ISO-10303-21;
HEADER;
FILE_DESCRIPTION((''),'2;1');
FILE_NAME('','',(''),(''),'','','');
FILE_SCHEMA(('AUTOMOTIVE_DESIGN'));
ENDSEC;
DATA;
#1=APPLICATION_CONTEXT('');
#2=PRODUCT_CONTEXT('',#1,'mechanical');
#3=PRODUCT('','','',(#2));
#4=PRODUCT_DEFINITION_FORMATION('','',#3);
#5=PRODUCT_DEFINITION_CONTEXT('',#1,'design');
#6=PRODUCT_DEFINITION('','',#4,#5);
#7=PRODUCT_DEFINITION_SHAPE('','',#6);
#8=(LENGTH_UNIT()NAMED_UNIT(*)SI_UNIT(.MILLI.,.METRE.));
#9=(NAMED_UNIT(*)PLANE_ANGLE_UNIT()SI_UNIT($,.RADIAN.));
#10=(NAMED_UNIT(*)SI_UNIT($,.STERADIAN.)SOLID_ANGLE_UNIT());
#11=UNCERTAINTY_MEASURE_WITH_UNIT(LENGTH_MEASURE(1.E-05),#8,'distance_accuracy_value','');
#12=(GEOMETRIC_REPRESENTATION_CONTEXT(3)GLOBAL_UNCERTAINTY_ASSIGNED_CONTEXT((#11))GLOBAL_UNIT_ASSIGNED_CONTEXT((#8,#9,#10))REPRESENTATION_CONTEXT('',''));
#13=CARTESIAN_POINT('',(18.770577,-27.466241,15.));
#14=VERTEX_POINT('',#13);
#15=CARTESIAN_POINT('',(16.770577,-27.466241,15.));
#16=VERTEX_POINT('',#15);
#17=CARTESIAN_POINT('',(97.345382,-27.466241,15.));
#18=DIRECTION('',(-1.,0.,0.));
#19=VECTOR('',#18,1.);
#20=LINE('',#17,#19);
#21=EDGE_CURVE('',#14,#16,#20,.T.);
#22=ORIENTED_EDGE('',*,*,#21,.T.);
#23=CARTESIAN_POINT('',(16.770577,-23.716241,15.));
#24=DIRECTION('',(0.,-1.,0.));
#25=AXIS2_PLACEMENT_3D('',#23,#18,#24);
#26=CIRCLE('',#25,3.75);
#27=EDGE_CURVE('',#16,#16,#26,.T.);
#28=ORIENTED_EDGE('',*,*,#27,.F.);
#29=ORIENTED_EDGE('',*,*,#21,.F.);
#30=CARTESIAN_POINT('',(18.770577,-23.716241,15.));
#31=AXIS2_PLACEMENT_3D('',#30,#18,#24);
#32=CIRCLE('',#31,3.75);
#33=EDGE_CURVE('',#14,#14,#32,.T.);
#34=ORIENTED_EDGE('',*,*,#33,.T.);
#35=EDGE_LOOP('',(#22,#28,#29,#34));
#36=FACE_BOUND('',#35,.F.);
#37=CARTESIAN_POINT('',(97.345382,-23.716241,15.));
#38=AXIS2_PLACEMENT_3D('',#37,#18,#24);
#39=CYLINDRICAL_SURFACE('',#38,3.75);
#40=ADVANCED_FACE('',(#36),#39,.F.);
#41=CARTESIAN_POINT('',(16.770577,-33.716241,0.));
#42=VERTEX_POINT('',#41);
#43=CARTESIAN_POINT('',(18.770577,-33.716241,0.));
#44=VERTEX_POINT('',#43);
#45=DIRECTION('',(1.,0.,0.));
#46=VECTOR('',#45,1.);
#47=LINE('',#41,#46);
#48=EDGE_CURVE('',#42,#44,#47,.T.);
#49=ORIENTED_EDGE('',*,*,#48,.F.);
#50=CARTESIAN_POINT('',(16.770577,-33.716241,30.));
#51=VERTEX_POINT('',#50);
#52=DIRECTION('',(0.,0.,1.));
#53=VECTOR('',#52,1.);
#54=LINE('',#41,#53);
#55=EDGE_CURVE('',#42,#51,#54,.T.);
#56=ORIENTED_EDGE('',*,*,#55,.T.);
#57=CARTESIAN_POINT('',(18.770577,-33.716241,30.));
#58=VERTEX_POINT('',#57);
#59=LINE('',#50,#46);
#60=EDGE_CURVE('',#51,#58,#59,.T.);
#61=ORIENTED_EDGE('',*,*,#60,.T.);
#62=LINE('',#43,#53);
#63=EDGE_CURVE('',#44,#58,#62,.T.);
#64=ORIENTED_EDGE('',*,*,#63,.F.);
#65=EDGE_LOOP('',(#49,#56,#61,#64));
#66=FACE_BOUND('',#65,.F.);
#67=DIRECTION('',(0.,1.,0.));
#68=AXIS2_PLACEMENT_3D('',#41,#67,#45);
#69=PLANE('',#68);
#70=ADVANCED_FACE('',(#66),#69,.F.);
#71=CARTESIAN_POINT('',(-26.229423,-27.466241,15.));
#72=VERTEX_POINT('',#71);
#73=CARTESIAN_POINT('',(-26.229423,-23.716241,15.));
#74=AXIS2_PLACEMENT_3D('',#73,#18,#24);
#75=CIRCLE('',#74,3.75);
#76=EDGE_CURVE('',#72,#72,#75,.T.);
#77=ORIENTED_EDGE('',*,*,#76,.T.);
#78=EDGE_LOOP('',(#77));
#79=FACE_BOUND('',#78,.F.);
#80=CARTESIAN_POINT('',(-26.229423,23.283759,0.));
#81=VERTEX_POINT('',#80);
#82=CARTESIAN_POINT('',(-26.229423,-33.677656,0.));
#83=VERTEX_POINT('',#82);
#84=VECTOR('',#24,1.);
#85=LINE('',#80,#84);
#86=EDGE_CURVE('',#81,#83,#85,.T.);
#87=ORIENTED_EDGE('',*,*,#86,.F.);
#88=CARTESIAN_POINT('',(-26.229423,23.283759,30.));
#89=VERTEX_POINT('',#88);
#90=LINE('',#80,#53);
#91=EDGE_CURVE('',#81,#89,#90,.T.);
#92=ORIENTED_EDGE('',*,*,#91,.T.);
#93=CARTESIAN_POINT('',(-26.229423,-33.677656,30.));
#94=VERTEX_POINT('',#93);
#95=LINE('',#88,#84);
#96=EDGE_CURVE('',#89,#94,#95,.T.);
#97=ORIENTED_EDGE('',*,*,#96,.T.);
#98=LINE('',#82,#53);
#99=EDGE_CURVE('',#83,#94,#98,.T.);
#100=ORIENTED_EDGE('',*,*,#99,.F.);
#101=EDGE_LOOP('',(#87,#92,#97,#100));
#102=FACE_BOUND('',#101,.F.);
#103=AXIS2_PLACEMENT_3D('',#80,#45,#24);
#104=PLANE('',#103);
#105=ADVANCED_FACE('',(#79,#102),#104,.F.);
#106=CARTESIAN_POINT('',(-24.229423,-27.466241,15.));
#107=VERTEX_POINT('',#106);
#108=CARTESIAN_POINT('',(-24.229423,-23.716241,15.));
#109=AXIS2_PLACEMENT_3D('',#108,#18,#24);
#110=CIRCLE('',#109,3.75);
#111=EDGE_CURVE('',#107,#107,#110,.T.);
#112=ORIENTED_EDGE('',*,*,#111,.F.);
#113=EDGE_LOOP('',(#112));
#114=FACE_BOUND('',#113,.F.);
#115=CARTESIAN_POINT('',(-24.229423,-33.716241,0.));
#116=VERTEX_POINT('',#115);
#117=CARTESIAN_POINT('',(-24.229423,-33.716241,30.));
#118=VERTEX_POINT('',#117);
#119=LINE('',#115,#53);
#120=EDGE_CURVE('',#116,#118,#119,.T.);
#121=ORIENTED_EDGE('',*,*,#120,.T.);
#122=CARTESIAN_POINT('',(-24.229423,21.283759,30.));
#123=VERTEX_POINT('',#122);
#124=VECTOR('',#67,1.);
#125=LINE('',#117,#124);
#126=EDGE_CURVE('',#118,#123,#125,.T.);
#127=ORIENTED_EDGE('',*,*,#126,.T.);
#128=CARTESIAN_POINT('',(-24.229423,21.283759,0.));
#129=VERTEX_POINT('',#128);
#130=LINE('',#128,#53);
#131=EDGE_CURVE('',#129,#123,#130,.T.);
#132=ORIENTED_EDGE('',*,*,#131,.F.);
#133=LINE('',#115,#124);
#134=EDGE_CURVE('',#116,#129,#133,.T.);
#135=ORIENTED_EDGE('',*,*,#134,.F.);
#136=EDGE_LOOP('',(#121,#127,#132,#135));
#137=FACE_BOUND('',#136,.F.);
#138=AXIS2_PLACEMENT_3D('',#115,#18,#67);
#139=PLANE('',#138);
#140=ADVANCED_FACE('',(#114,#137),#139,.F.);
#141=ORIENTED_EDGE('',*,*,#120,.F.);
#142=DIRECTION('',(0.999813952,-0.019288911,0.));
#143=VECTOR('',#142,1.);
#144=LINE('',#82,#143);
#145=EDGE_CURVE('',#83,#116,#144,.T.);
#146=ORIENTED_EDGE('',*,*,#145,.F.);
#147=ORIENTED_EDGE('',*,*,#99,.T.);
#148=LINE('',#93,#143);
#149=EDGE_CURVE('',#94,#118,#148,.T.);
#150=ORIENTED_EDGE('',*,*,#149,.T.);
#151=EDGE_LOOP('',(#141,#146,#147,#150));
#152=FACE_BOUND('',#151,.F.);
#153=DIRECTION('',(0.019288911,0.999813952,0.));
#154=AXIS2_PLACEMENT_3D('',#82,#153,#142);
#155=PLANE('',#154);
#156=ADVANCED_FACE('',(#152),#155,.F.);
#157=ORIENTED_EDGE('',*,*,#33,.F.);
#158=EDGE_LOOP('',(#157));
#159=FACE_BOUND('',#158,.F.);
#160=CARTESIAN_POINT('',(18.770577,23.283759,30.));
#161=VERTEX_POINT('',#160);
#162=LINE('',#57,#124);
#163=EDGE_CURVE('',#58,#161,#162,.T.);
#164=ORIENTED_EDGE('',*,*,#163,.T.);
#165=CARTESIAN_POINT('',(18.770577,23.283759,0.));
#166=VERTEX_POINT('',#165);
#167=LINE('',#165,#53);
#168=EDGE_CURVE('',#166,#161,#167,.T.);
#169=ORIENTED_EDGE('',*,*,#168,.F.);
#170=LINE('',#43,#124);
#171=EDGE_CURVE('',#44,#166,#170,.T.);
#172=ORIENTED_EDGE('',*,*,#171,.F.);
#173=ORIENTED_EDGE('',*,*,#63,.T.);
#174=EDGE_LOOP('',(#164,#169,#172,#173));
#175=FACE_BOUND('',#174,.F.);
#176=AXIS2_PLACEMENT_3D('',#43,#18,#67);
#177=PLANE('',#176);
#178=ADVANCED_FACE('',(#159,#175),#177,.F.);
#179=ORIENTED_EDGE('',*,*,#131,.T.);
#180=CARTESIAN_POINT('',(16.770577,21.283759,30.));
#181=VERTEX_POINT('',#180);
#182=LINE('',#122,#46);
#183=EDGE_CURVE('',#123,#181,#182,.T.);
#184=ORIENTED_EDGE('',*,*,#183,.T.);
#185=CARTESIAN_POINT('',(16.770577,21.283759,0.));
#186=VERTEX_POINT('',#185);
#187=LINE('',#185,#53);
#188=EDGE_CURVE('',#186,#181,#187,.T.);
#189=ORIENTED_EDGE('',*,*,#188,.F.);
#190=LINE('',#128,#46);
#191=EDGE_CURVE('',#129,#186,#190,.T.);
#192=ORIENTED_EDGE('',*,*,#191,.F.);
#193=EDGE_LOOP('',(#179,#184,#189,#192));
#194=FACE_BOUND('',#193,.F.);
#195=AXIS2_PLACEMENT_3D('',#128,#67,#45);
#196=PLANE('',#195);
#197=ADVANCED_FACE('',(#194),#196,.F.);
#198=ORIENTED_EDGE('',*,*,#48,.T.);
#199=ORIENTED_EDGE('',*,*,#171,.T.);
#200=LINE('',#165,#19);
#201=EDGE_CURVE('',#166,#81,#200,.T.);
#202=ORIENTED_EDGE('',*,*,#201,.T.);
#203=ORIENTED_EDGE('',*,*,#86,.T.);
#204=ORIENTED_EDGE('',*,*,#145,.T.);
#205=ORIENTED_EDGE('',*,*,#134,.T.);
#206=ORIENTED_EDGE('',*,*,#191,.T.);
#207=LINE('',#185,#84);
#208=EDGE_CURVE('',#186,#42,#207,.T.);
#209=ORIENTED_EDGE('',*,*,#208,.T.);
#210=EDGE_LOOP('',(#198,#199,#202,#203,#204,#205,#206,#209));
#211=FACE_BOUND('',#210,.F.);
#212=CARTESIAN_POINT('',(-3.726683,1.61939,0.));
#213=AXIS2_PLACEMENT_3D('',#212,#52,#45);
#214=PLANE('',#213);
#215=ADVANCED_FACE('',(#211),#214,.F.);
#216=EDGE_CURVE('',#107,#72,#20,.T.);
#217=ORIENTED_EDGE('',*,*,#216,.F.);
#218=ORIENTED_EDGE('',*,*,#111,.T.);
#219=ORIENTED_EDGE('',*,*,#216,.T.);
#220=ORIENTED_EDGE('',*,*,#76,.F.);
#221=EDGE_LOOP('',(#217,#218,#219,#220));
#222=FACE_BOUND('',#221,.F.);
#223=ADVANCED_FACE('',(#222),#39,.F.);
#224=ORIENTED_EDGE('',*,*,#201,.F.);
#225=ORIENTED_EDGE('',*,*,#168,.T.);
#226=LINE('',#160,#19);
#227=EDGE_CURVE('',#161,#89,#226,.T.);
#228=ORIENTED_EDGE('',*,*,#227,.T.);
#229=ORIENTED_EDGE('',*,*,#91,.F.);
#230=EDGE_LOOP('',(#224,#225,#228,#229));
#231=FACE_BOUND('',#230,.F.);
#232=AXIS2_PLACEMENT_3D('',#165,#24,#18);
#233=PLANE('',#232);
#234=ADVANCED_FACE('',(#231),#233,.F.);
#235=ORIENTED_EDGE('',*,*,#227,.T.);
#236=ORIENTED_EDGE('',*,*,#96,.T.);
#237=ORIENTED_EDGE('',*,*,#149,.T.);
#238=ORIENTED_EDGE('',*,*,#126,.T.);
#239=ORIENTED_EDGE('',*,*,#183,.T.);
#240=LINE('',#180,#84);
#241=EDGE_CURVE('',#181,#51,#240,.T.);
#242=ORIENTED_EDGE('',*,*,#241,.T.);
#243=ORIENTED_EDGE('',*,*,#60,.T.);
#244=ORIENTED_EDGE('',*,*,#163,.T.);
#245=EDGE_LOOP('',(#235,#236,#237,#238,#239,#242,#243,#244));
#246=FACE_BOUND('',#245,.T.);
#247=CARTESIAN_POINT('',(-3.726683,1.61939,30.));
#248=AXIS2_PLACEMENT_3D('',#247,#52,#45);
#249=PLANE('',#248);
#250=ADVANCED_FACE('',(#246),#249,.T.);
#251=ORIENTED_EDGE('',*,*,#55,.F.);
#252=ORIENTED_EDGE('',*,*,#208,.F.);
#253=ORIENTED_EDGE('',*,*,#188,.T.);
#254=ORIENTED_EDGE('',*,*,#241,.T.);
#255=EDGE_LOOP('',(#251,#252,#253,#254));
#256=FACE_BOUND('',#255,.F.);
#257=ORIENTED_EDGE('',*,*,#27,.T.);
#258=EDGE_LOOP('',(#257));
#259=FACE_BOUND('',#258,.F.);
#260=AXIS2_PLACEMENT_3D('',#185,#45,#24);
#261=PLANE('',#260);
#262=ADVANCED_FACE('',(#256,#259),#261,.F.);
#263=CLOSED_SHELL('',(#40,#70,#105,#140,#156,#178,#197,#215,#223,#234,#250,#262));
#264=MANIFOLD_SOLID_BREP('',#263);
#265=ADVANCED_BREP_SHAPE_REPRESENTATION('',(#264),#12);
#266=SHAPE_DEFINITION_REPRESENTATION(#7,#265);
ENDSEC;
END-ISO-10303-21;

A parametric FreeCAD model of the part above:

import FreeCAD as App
import Part
import Sketcher
from FreeCAD import Vector


def add_polygon(sketch, points):
    """Adds a closed chain of lines whose ends are joined by coincident constraints."""
    first, n = sketch.GeometryCount, len(points)
    for a, b in zip(points, points[1:] + points[:1]):
        sketch.addGeometry(Part.LineSegment(App.Vector(*a, 0), App.Vector(*b, 0)), False)
    for i in range(n):
        sketch.addConstraint(Sketcher.Constraint("Coincident", first + i, 2, first + (i + 1) % n, 1))

doc = App.newDocument("Part")
body = doc.addObject("PartDesign::Body", "Body")

sketch1 = body.newObject("Sketcher::SketchObject", "Sketch")
sketch1.AttachmentSupport = (doc.getObject("XY_Plane"), [""])
sketch1.MapMode = "FlatFace"
add_polygon(sketch1, [(-24.229423, -33.716241), (-24.229423, 21.283759), (16.770577, 21.283759), (16.770577, -33.716241), (18.770577, -33.716241), (18.770577, 23.283759), (-26.229423, 23.283759), (-26.229423, -33.677656)])
sketch1.addConstraint([
    Sketcher.Constraint("Vertical", 0),
    Sketcher.Constraint("Horizontal", 1),
    Sketcher.Constraint("Vertical", 2),
    Sketcher.Constraint("Horizontal", 3),
    Sketcher.Constraint("Vertical", 4),
    Sketcher.Constraint("Horizontal", 5),
    Sketcher.Constraint("Vertical", 6),
    Sketcher.Constraint("Horizontal", 3, 2, 7, 2),
    Sketcher.Constraint("DistanceX", 1, 1, 1, 2, 41.0),
    Sketcher.Constraint("DistanceX", 3, 1, 3, 2, 2.0),
    Sketcher.Constraint("DistanceX", 5, 2, 5, 1, 45.0),
    Sketcher.Constraint("DistanceY", 0, 1, 0, 2, 55.0),
    Sketcher.Constraint("DistanceY", 4, 1, 4, 2, 57.0),
    Sketcher.Constraint("DistanceY", 6, 2, 6, 1, 56.961415),
    Sketcher.Constraint("DistanceY", -1, 1, 0, 2, 21.283759),
    Sketcher.Constraint("DistanceX", 0, 2, -1, 1, 24.229423),
])
pad1 = body.newObject("PartDesign::Pad", "Pad")
pad1.Profile = sketch1
pad1.Length = 30

sketch2 = body.newObject("Sketcher::SketchObject", "Sketch001")
sketch2.AttachmentSupport = (doc.getObject("YZ_Plane"), [""])
sketch2.MapMode = "FlatFace"
sketch2.AttachmentOffset = App.Placement(Vector(0, 0, 18.770577), App.Rotation())
sketch2.addGeometry(Part.Circle(Vector(-23.716241, 15, 0), Vector(0, 0, 1), 3.75), False)
sketch2.addConstraint([
    Sketcher.Constraint("Diameter", 0, 7.5),
    Sketcher.Constraint("DistanceY", -1, 1, 0, 3, 15.0),
    Sketcher.Constraint("DistanceX", 0, 3, -1, 1, 23.716241),
])
doc.recompute()
hole = body.newObject("PartDesign::Hole", "Hole")
hole.Profile = sketch2
hole.ThreadType = "None"
hole.Diameter = 7.5
hole.DepthType = "ThroughAll"

doc.recompute()
